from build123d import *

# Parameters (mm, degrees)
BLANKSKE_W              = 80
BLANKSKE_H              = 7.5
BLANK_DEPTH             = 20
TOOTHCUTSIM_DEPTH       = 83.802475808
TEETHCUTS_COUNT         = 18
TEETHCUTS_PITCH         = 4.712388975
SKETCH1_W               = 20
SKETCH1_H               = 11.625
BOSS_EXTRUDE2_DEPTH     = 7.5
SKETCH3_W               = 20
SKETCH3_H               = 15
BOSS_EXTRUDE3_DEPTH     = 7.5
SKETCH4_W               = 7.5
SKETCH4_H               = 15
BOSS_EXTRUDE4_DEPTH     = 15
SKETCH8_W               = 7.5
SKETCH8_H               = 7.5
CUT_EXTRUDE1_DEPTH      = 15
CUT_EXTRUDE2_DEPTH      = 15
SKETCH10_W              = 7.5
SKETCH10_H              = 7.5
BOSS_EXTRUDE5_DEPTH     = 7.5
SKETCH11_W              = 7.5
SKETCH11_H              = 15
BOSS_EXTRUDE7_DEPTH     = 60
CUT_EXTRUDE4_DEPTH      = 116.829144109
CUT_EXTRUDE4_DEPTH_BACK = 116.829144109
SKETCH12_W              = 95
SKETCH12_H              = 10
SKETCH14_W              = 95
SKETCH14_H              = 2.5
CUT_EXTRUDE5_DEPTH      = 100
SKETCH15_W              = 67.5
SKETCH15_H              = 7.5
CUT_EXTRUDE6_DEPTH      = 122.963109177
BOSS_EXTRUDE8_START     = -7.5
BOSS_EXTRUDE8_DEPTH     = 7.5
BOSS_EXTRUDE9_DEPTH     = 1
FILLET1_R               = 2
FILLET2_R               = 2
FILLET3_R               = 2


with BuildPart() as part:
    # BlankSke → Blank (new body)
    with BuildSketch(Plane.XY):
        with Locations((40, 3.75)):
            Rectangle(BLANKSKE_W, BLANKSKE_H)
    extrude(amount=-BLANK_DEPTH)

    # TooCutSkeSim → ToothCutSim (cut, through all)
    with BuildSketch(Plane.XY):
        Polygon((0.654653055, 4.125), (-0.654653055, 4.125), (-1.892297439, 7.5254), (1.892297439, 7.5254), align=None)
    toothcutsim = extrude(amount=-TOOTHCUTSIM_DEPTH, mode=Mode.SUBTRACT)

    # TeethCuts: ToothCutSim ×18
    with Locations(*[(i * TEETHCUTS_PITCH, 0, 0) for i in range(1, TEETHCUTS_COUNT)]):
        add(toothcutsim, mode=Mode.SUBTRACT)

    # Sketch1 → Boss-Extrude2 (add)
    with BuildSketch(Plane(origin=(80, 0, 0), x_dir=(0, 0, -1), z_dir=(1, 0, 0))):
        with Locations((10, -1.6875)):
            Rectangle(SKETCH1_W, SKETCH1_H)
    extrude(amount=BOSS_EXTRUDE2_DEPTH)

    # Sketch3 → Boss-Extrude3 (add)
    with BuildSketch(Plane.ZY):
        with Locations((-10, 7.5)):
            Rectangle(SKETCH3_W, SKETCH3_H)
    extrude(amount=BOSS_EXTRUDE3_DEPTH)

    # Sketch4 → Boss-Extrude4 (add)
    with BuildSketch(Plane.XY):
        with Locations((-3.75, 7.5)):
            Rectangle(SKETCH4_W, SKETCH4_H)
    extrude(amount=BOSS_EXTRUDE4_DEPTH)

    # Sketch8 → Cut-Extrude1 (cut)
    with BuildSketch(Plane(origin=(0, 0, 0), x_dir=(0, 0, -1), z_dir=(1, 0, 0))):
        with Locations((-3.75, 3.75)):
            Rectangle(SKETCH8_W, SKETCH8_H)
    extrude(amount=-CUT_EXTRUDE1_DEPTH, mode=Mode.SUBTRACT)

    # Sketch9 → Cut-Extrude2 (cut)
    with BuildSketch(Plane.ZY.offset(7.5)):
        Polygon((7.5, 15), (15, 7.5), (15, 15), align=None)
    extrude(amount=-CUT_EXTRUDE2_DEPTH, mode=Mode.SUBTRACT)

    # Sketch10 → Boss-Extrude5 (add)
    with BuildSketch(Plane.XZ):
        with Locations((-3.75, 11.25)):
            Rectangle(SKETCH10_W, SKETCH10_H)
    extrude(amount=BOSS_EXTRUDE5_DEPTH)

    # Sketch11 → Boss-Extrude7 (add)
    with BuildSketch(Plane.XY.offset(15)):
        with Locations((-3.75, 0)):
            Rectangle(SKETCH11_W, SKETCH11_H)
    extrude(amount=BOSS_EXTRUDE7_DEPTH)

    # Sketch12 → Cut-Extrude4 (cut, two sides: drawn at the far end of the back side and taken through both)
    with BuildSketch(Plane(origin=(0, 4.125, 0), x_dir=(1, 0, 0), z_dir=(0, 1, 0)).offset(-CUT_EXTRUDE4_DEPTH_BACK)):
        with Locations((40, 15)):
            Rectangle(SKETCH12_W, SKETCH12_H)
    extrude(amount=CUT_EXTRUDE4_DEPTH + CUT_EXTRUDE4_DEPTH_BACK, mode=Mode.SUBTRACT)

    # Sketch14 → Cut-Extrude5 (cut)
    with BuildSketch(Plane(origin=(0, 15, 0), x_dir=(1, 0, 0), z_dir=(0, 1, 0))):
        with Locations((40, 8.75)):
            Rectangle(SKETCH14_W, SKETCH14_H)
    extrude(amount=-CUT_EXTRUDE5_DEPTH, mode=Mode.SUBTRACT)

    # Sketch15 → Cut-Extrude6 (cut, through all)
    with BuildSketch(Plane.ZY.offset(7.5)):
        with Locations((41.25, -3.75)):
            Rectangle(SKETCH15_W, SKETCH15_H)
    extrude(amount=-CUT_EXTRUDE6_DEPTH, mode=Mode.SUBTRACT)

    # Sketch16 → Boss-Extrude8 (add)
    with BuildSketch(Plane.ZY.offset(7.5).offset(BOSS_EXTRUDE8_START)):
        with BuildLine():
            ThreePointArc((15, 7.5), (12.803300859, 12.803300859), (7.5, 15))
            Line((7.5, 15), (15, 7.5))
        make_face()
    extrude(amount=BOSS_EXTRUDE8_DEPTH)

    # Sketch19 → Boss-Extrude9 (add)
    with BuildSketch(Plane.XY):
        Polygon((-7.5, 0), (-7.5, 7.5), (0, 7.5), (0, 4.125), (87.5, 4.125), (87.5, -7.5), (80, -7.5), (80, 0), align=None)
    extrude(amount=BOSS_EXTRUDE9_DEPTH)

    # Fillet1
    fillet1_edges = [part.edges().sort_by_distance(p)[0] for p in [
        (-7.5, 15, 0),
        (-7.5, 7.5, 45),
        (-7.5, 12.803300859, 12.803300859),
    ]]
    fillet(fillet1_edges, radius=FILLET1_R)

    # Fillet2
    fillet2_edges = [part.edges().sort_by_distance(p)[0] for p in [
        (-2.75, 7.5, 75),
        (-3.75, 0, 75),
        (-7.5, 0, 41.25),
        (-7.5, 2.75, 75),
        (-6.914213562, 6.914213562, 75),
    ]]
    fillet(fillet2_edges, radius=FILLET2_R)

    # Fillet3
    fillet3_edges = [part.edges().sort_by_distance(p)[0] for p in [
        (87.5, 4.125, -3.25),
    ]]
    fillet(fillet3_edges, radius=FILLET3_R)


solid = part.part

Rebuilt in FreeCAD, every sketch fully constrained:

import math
import FreeCAD as App
import Part
import Sketcher

V = App.Vector
Q = App.Units.Quantity


def edges_at(feature, points):
    """Names of the edges that pass closest to the given points."""
    edges = feature.Shape.Edges
    near = lambda p: min(range(len(edges)), key=lambda i: edges[i].distToShape(Part.Vertex(*p))[0])
    return sorted({f"Edge{near(p) + 1}" for p in points})

doc = App.newDocument("Part")
body = doc.addObject("PartDesign::Body", "Body")

# Sketch on XY plane
sketch1 = doc.addObject("Sketcher::SketchObject", "Sketch")
body.addObject(sketch1)
sketch1.AttachmentSupport = (doc.XY_Plane, [""])
sketch1.MapMode = "FlatFace"
sketch1.addGeometry([
    Part.LineSegment(V(0, 8, 0), V(0, 0, 0)),
    Part.LineSegment(V(0, 0, 0), V(80, 0, 0)),
    Part.LineSegment(V(80, 0, 0), V(80, 8, 0)),
    Part.LineSegment(V(80, 8, 0), V(0, 8, 0)),
], False)
sketch1.addConstraint([
    Sketcher.Constraint("Coincident", 0, 2, 1, 1),
    Sketcher.Constraint("Coincident", 1, 2, 2, 1),
    Sketcher.Constraint("Coincident", 2, 2, 3, 1),
    Sketcher.Constraint("Coincident", 3, 2, 0, 1),
    Sketcher.Constraint("Vertical", 0),
    Sketcher.Constraint("Horizontal", 1),
    Sketcher.Constraint("Vertical", 2),
    Sketcher.Constraint("Horizontal", 3),
    Sketcher.Constraint("Coincident", 0, 2, -1, 1),
    Sketcher.Constraint("DistanceX", 1, 1, 1, 2, 80.0),
    Sketcher.Constraint("DistanceY", 0, 2, 0, 1, 7.5),
])
pad1 = doc.addObject("PartDesign::Pad", "Pad")
body.addObject(pad1)
pad1.Profile = sketch1
pad1.Length = 20
pad1.Reversed = True

# Sketch on XY plane
sketch2 = doc.addObject("Sketcher::SketchObject", "Sketch001")
body.addObject(sketch2)
sketch2.AttachmentSupport = (doc.XY_Plane, [""])
sketch2.MapMode = "FlatFace"
sketch2.addGeometry([
    Part.LineSegment(V(-0.7, 4.1, 0), V(0.7, 4.1, 0)),
    Part.LineSegment(V(0.7, 4.1, 0), V(1.9, 7.5, 0)),
    Part.LineSegment(V(1.9, 7.5, 0), V(-1.9, 7.5, 0)),
    Part.LineSegment(V(-1.9, 7.5, 0), V(-0.7, 4.1, 0)),
], False)
sketch2.addConstraint([
    Sketcher.Constraint("Coincident", 0, 2, 1, 1),
    Sketcher.Constraint("Coincident", 1, 2, 2, 1),
    Sketcher.Constraint("Coincident", 2, 2, 3, 1),
    Sketcher.Constraint("Coincident", 3, 2, 0, 1),
    Sketcher.Constraint("Horizontal", 0),
    Sketcher.Constraint("Horizontal", 2),
    Sketcher.Constraint("Equal", 1, 3),
    Sketcher.Constraint("Angle", 1, Q("70 deg")),
    Sketcher.Constraint("DistanceY", -1, 1, 0, 2, 4.125),
    Sketcher.Constraint("DistanceY", -1, 1, 1, 2, 7.5254),
    Sketcher.Constraint("DistanceX", 0, 1, 0, 2, 1.309306),
    Sketcher.Constraint("DistanceX", -1, 1, 0, 2, 0.654653),
])
pocket1 = doc.addObject("PartDesign::Pocket", "Pocket")
body.addObject(pocket1)
pocket1.Profile = sketch2
pocket1.Type = "ThroughAll"
doc.recompute()

linearpattern = doc.addObject("PartDesign::LinearPattern", "LinearPattern")
body.addObject(linearpattern)
linearpattern.Originals = [pocket1]
linearpattern.Direction = (doc.X_Axis, [""])
linearpattern.Mode = "offset"
linearpattern.Offset = 4.712389
linearpattern.Occurrences = 18
body.Tip = linearpattern

# Sketch on YZ plane
sketch3 = doc.addObject("Sketcher::SketchObject", "Sketch002")
body.addObject(sketch3)
sketch3.AttachmentSupport = (doc.YZ_Plane, [""])
sketch3.MapMode = "FlatFace"
sketch3.AttachmentOffset = App.Placement(V(0, 0, 80), App.Rotation())
sketch3.addGeometry([
    Part.LineSegment(V(4, 0, 0), V(-8, 0, 0)),
    Part.LineSegment(V(-8, 0, 0), V(-8, -20, 0)),
    Part.LineSegment(V(-8, -20, 0), V(4, -20, 0)),
    Part.LineSegment(V(4, -20, 0), V(4, 0, 0)),
], False)
sketch3.addConstraint([
    Sketcher.Constraint("Coincident", 0, 2, 1, 1),
    Sketcher.Constraint("Coincident", 1, 2, 2, 1),
    Sketcher.Constraint("Coincident", 2, 2, 3, 1),
    Sketcher.Constraint("Coincident", 3, 2, 0, 1),
    Sketcher.Constraint("Horizontal", 0),
    Sketcher.Constraint("Vertical", 1),
    Sketcher.Constraint("Horizontal", 2),
    Sketcher.Constraint("Vertical", 3),
    Sketcher.Constraint("PointOnObject", 0, 2, -1),
    Sketcher.Constraint("DistanceY", 1, 2, 1, 1, 20.0),
    Sketcher.Constraint("DistanceX", 0, 2, -1, 1, 7.5),
    Sketcher.Constraint("DistanceX", 0, 2, 0, 1, 11.625),
])
pad2 = doc.addObject("PartDesign::Pad", "Pad001")
body.addObject(pad2)
pad2.Profile = sketch3
pad2.Length = 7.5

# Sketch on YZ plane
sketch4 = doc.addObject("Sketcher::SketchObject", "Sketch003")
body.addObject(sketch4)
sketch4.AttachmentSupport = (doc.YZ_Plane, [""])
sketch4.MapMode = "FlatFace"
sketch4.addGeometry([
    Part.LineSegment(V(15, -20, 0), V(0, -20, 0)),
    Part.LineSegment(V(0, -20, 0), V(0, 0, 0)),
    Part.LineSegment(V(0, 0, 0), V(15, 0, 0)),
    Part.LineSegment(V(15, 0, 0), V(15, -20, 0)),
], False)
sketch4.addConstraint([
    Sketcher.Constraint("Coincident", 0, 2, 1, 1),
    Sketcher.Constraint("Coincident", 1, 2, 2, 1),
    Sketcher.Constraint("Coincident", 2, 2, 3, 1),
    Sketcher.Constraint("Coincident", 3, 2, 0, 1),
    Sketcher.Constraint("Horizontal", 0),
    Sketcher.Constraint("Vertical", 1),
    Sketcher.Constraint("Horizontal", 2),
    Sketcher.Constraint("Vertical", 3),
    Sketcher.Constraint("Coincident", 1, 2, -1, 1),
    Sketcher.Constraint("DistanceX", 0, 2, 0, 1, 15.0),
    Sketcher.Constraint("DistanceY", 1, 1, 1, 2, 20.0),
])
pad3 = doc.addObject("PartDesign::Pad", "Pad002")
body.addObject(pad3)
pad3.Profile = sketch4
pad3.Length = 7.5
pad3.Reversed = True

# Sketch on XY plane
sketch5 = doc.addObject("Sketcher::SketchObject", "Sketch004")
body.addObject(sketch5)
sketch5.AttachmentSupport = (doc.XY_Plane, [""])
sketch5.MapMode = "FlatFace"
sketch5.addGeometry([
    Part.LineSegment(V(-8, 15, 0), V(-8, 0, 0)),
    Part.LineSegment(V(-8, 0, 0), V(0, 0, 0)),
    Part.LineSegment(V(0, 0, 0), V(0, 15, 0)),
    Part.LineSegment(V(0, 15, 0), V(-8, 15, 0)),
], False)
sketch5.addConstraint([
    Sketcher.Constraint("Coincident", 0, 2, 1, 1),
    Sketcher.Constraint("Coincident", 1, 2, 2, 1),
    Sketcher.Constraint("Coincident", 2, 2, 3, 1),
    Sketcher.Constraint("Coincident", 3, 2, 0, 1),
    Sketcher.Constraint("Vertical", 0),
    Sketcher.Constraint("Horizontal", 1),
    Sketcher.Constraint("Vertical", 2),
    Sketcher.Constraint("Horizontal", 3),
    Sketcher.Constraint("Coincident", 1, 2, -1, 1),
    Sketcher.Constraint("DistanceY", 0, 2, 0, 1, 15.0),
    Sketcher.Constraint("DistanceX", 1, 1, 1, 2, 7.5),
])
pad4 = doc.addObject("PartDesign::Pad", "Pad003")
body.addObject(pad4)
pad4.Profile = sketch5
pad4.Length = 15

# Sketch on YZ plane
sketch6 = doc.addObject("Sketcher::SketchObject", "Sketch005")
body.addObject(sketch6)
sketch6.AttachmentSupport = (doc.YZ_Plane, [""])
sketch6.MapMode = "FlatFace"
sketch6.addGeometry([
    Part.LineSegment(V(8, 8, 0), V(0, 8, 0)),
    Part.LineSegment(V(0, 8, 0), V(0, 0, 0)),
    Part.LineSegment(V(0, 0, 0), V(8, 0, 0)),
    Part.LineSegment(V(8, 0, 0), V(8, 8, 0)),
], False)
sketch6.addConstraint([
    Sketcher.Constraint("Coincident", 0, 2, 1, 1),
    Sketcher.Constraint("Coincident", 1, 2, 2, 1),
    Sketcher.Constraint("Coincident", 2, 2, 3, 1),
    Sketcher.Constraint("Coincident", 3, 2, 0, 1),
    Sketcher.Constraint("Horizontal", 0),
    Sketcher.Constraint("Vertical", 1),
    Sketcher.Constraint("Horizontal", 2),
    Sketcher.Constraint("Vertical", 3),
    Sketcher.Constraint("Coincident", 1, 2, -1, 1),
    Sketcher.Constraint("Equal", 2, 1),
    Sketcher.Constraint("DistanceX", 0, 2, 0, 1, 7.5),
])
pocket2 = doc.addObject("PartDesign::Pocket", "Pocket001")
body.addObject(pocket2)
pocket2.Profile = sketch6
pocket2.Length = 15

# Sketch on YZ plane
sketch7 = doc.addObject("Sketcher::SketchObject", "Sketch006")
body.addObject(sketch7)
sketch7.AttachmentSupport = (doc.YZ_Plane, [""])
sketch7.MapMode = "FlatFace"
sketch7.AttachmentOffset = App.Placement(V(0, 0, -7.5), App.Rotation())
sketch7.addGeometry([
    Part.LineSegment(V(15, 8, 0), V(8, 15, 0)),
    Part.LineSegment(V(8, 15, 0), V(15, 15, 0)),
    Part.LineSegment(V(15, 15, 0), V(15, 8, 0)),
], False)
sketch7.addConstraint([
    Sketcher.Constraint("Coincident", 0, 2, 1, 1),
    Sketcher.Constraint("Coincident", 1, 2, 2, 1),
    Sketcher.Constraint("Coincident", 2, 2, 0, 1),
    Sketcher.Constraint("Horizontal", 1),
    Sketcher.Constraint("Vertical", 2),
    Sketcher.Constraint("Equal", 1, 2),
    Sketcher.Constraint("DistanceX", 1, 1, 1, 2, 7.5),
    Sketcher.Constraint("DistanceY", -1, 1, 0, 2, 15.0),
    Sketcher.Constraint("DistanceX", -1, 1, 1, 2, 15.0),
])
pocket3 = doc.addObject("PartDesign::Pocket", "Pocket002")
body.addObject(pocket3)
pocket3.Profile = sketch7
pocket3.Length = 15
pocket3.Reversed = True

# Sketch on XZ plane
sketch8 = doc.addObject("Sketcher::SketchObject", "Sketch007")
body.addObject(sketch8)
sketch8.AttachmentSupport = (doc.XZ_Plane, [""])
sketch8.MapMode = "FlatFace"
sketch8.addGeometry([
    Part.LineSegment(V(-8, 15, 0), V(-8, 8, 0)),
    Part.LineSegment(V(-8, 8, 0), V(0, 8, 0)),
    Part.LineSegment(V(0, 8, 0), V(0, 15, 0)),
    Part.LineSegment(V(0, 15, 0), V(-8, 15, 0)),
], False)
sketch8.addConstraint([
    Sketcher.Constraint("Coincident", 0, 2, 1, 1),
    Sketcher.Constraint("Coincident", 1, 2, 2, 1),
    Sketcher.Constraint("Coincident", 2, 2, 3, 1),
    Sketcher.Constraint("Coincident", 3, 2, 0, 1),
    Sketcher.Constraint("Vertical", 0),
    Sketcher.Constraint("Horizontal", 1),
    Sketcher.Constraint("Vertical", 2),
    Sketcher.Constraint("Horizontal", 3),
    Sketcher.Constraint("PointOnObject", 1, 2, -2),
    Sketcher.Constraint("Equal", 3, 0),
    Sketcher.Constraint("DistanceX", 1, 1, 1, 2, 7.5),
    Sketcher.Constraint("DistanceY", -1, 1, 2, 2, 15.0),
])
pad5 = doc.addObject("PartDesign::Pad", "Pad004")
body.addObject(pad5)
pad5.Profile = sketch8
pad5.Length = 7.5

# Sketch on XY plane
sketch9 = doc.addObject("Sketcher::SketchObject", "Sketch008")
body.addObject(sketch9)
sketch9.AttachmentSupport = (doc.XY_Plane, [""])
sketch9.MapMode = "FlatFace"
sketch9.AttachmentOffset = App.Placement(V(0, 0, 15), App.Rotation())
sketch9.addGeometry([
    Part.LineSegment(V(-8, 8, 0), V(-8, -8, 0)),
    Part.LineSegment(V(-8, -8, 0), V(0, -8, 0)),
    Part.LineSegment(V(0, -8, 0), V(0, 8, 0)),
    Part.LineSegment(V(0, 8, 0), V(-8, 8, 0)),
], False)
sketch9.addConstraint([
    Sketcher.Constraint("Coincident", 0, 2, 1, 1),
    Sketcher.Constraint("Coincident", 1, 2, 2, 1),
    Sketcher.Constraint("Coincident", 2, 2, 3, 1),
    Sketcher.Constraint("Coincident", 3, 2, 0, 1),
    Sketcher.Constraint("Vertical", 0),
    Sketcher.Constraint("Horizontal", 1),
    Sketcher.Constraint("Vertical", 2),
    Sketcher.Constraint("Horizontal", 3),
    Sketcher.Constraint("Symmetric", 1, 2, 2, 2, -1, 1),
    Sketcher.Constraint("DistanceY", 0, 2, 0, 1, 15.0),
    Sketcher.Constraint("DistanceX", 1, 1, 1, 2, 7.5),
])
pad6 = doc.addObject("PartDesign::Pad", "Pad005")
body.addObject(pad6)
pad6.Profile = sketch9
pad6.Length = 60

# Sketch on XZ plane
sketch10 = doc.addObject("Sketcher::SketchObject", "Sketch009")
body.addObject(sketch10)
sketch10.AttachmentSupport = (doc.XZ_Plane, [""])
sketch10.MapMode = "FlatFace"
sketch10.AttachmentOffset = App.Placement(V(0, 0, -4.125), App.Rotation())
sketch10.addGeometry([
    Part.LineSegment(V(-8, -20, 0), V(-8, -10, 0)),
    Part.LineSegment(V(-8, -10, 0), V(88, -10, 0)),
    Part.LineSegment(V(88, -10, 0), V(88, -20, 0)),
    Part.LineSegment(V(88, -20, 0), V(-8, -20, 0)),
], False)
sketch10.addConstraint([
    Sketcher.Constraint("Coincident", 0, 2, 1, 1),
    Sketcher.Constraint("Coincident", 1, 2, 2, 1),
    Sketcher.Constraint("Coincident", 2, 2, 3, 1),
    Sketcher.Constraint("Coincident", 3, 2, 0, 1),
    Sketcher.Constraint("Vertical", 0),
    Sketcher.Constraint("Horizontal", 1),
    Sketcher.Constraint("Vertical", 2),
    Sketcher.Constraint("Horizontal", 3),
    Sketcher.Constraint("DistanceX", 1, 1, 1, 2, 95.0),
    Sketcher.Constraint("DistanceY", 0, 1, 0, 2, 10.0),
    Sketcher.Constraint("DistanceY", 0, 2, -1, 1, 10.0),
    Sketcher.Constraint("DistanceX", 0, 2, -1, 1, 7.5),
])
pocket4 = doc.addObject("PartDesign::Pocket", "Pocket003")
body.addObject(pocket4)
pocket4.Profile = sketch10
pocket4.Type = "ThroughAll"
pocket4.Midplane = True

# Sketch on XZ plane
sketch11 = doc.addObject("Sketcher::SketchObject", "Sketch010")
body.addObject(sketch11)
sketch11.AttachmentSupport = (doc.XZ_Plane, [""])
sketch11.MapMode = "FlatFace"
sketch11.AttachmentOffset = App.Placement(V(0, 0, -15), App.Rotation())
sketch11.addGeometry([
    Part.LineSegment(V(-7.5, -10, 0), V(-7.5, -7.5, 0)),
    Part.LineSegment(V(-7.5, -7.5, 0), V(87.5, -7.5, 0)),
    Part.LineSegment(V(87.5, -7.5, 0), V(87.5, -10, 0)),
    Part.LineSegment(V(87.5, -10, 0), V(-7.5, -10, 0)),
], False)
sketch11.addConstraint([
    Sketcher.Constraint("Coincident", 0, 2, 1, 1),
    Sketcher.Constraint("Coincident", 1, 2, 2, 1),
    Sketcher.Constraint("Coincident", 2, 2, 3, 1),
    Sketcher.Constraint("Coincident", 3, 2, 0, 1),
    Sketcher.Constraint("Vertical", 0),
    Sketcher.Constraint("Horizontal", 1),
    Sketcher.Constraint("Vertical", 2),
    Sketcher.Constraint("Horizontal", 3),
    Sketcher.Constraint("DistanceX", 1, 1, 1, 2, 95.0),
    Sketcher.Constraint("DistanceY", 0, 1, 0, 2, 2.5),
    Sketcher.Constraint("DistanceY", 2, 2, -1, 1, 10.0),
    Sketcher.Constraint("DistanceX", 0, 2, -1, 1, 7.5),
])
pocket5 = doc.addObject("PartDesign::Pocket", "Pocket004")
body.addObject(pocket5)
pocket5.Profile = sketch11
pocket5.Length = 100
pocket5.Reversed = True

# Sketch on YZ plane
sketch12 = doc.addObject("Sketcher::SketchObject", "Sketch011")
body.addObject(sketch12)
sketch12.AttachmentSupport = (doc.YZ_Plane, [""])
sketch12.MapMode = "FlatFace"
sketch12.AttachmentOffset = App.Placement(V(0, 0, -7.5), App.Rotation())
sketch12.addGeometry([
    Part.LineSegment(V(0, 8, 0), V(-8, 8, 0)),
    Part.LineSegment(V(-8, 8, 0), V(-8, 75, 0)),
    Part.LineSegment(V(-8, 75, 0), V(0, 75, 0)),
    Part.LineSegment(V(0, 75, 0), V(0, 8, 0)),
], False)
sketch12.addConstraint([
    Sketcher.Constraint("Coincident", 0, 2, 1, 1),
    Sketcher.Constraint("Coincident", 1, 2, 2, 1),
    Sketcher.Constraint("Coincident", 2, 2, 3, 1),
    Sketcher.Constraint("Coincident", 3, 2, 0, 1),
    Sketcher.Constraint("Horizontal", 0),
    Sketcher.Constraint("Vertical", 1),
    Sketcher.Constraint("Horizontal", 2),
    Sketcher.Constraint("Vertical", 3),
    Sketcher.Constraint("PointOnObject", 2, 2, -2),
    Sketcher.Constraint("DistanceX", 0, 2, 0, 1, 7.5),
    Sketcher.Constraint("DistanceY", 1, 1, 1, 2, 67.5),
    Sketcher.Constraint("DistanceY", -1, 1, 1, 2, 75.0),
])
pocket6 = doc.addObject("PartDesign::Pocket", "Pocket005")
body.addObject(pocket6)
pocket6.Profile = sketch12
pocket6.Type = "ThroughAll"
pocket6.Reversed = True

# Sketch on YZ plane
sketch13 = doc.addObject("Sketcher::SketchObject", "Sketch012")
body.addObject(sketch13)
sketch13.AttachmentSupport = (doc.YZ_Plane, [""])
sketch13.MapMode = "FlatFace"
sketch13.addGeometry([
    Part.ArcOfCircle(Part.Circle(V(8, 8, 0), V(0, 0, 1), 8), math.radians(0), math.radians(90)),
    Part.LineSegment(V(15, 8, 0), V(8, 15, 0)),
], False)
sketch13.addConstraint([
    Sketcher.Constraint("Coincident", 0, 1, 1, 1),
    Sketcher.Constraint("Coincident", 1, 2, 0, 2),
    Sketcher.Constraint("Vertical", 0, 3, 1, 2),
    Sketcher.Constraint("Radius", 0, 7.5),
    Sketcher.Constraint("Angle", 1, Q("135 deg")),
    Sketcher.Constraint("DistanceX", -1, 1, 0, 1, 15.0),
    Sketcher.Constraint("DistanceY", -1, 1, 1, 2, 15.0),
])
pad7 = doc.addObject("PartDesign::Pad", "Pad006")
body.addObject(pad7)
pad7.Profile = sketch13
pad7.Length = 7.5
pad7.Reversed = True

# Sketch on XY plane
sketch14 = doc.addObject("Sketcher::SketchObject", "Sketch013")
body.addObject(sketch14)
sketch14.AttachmentSupport = (doc.XY_Plane, [""])
sketch14.MapMode = "FlatFace"
sketch14.addGeometry([
    Part.LineSegment(V(-7.5, 7.5, 0), V(-7.5, 0, 0)),  # 0
    Part.LineSegment(V(-7.5, 0, 0), V(80, 0, 0)),  # 1
    Part.LineSegment(V(80, 0, 0), V(80, -7.5, 0)),  # 2
    Part.LineSegment(V(80, -7.5, 0), V(87.5, -7.5, 0)),  # 3
    Part.LineSegment(V(87.5, -7.5, 0), V(87.5, 4.1, 0)),  # 4
    Part.LineSegment(V(87.5, 4.1, 0), V(0, 4.1, 0)),  # 5
    Part.LineSegment(V(0, 4.1, 0), V(0, 7.5, 0)),  # 6
    Part.LineSegment(V(0, 7.5, 0), V(-7.5, 7.5, 0)),  # 7
], False)
sketch14.addConstraint([
    Sketcher.Constraint("Coincident", 0, 2, 1, 1),
    Sketcher.Constraint("Coincident", 1, 2, 2, 1),
    Sketcher.Constraint("Coincident", 2, 2, 3, 1),
    Sketcher.Constraint("Coincident", 3, 2, 4, 1),
    Sketcher.Constraint("Coincident", 4, 2, 5, 1),
    Sketcher.Constraint("Coincident", 5, 2, 6, 1),
    Sketcher.Constraint("Coincident", 6, 2, 7, 1),
    Sketcher.Constraint("Coincident", 7, 2, 0, 1),
    Sketcher.Constraint("Vertical", 0),
    Sketcher.Constraint("Horizontal", 1),
    Sketcher.Constraint("Vertical", 2),
    Sketcher.Constraint("Horizontal", 3),
    Sketcher.Constraint("Vertical", 4),
    Sketcher.Constraint("Horizontal", 5),
    Sketcher.Constraint("Vertical", 6),
    Sketcher.Constraint("Horizontal", 7),
    Sketcher.Constraint("PointOnObject", 0, 2, -1),
    Sketcher.Constraint("PointOnObject", 5, 2, -2),
    Sketcher.Constraint("Equal", 1, 5),
    Sketcher.Constraint("Equal", 7, 0),
    Sketcher.Constraint("Equal", 0, 2),
    Sketcher.Constraint("DistanceX", 1, 1, 1, 2, 87.5),
    Sketcher.Constraint("DistanceX", 3, 1, 3, 2, 7.5),
    Sketcher.Constraint("DistanceY", 4, 1, 4, 2, 11.625),
])
pad8 = doc.addObject("PartDesign::Pad", "Pad007")
body.addObject(pad8)
pad8.Profile = sketch14
pad8.Length = 1
doc.recompute()

fillet = doc.addObject("PartDesign::Fillet", "Fillet")
body.addObject(fillet)
fillet.Base = (pad8, edges_at(pad8, [(-7.5, 15, 0), (-7.5, 7.5, 45), (-7.5, 12.803, 12.803)]))
fillet.Radius = 2
doc.recompute()

fillet2 = doc.addObject("PartDesign::Fillet", "Fillet001")
body.addObject(fillet2)
fillet2.Base = (fillet, edges_at(fillet, [
    (-2.75, 7.5, 75),
    (-3.75, 0, 75),
    (-7.5, 0, 41.25),
    (-7.5, 2.75, 75),
    (-6.914, 6.914, 75),
]))
fillet2.Radius = 2
doc.recompute()

fillet3 = doc.addObject("PartDesign::Fillet", "Fillet002")
body.addObject(fillet3)
fillet3.Base = (fillet2, edges_at(fillet2, [(87.5, 4.125, -3.25)]))
fillet3.Radius = 2

doc.recompute()
